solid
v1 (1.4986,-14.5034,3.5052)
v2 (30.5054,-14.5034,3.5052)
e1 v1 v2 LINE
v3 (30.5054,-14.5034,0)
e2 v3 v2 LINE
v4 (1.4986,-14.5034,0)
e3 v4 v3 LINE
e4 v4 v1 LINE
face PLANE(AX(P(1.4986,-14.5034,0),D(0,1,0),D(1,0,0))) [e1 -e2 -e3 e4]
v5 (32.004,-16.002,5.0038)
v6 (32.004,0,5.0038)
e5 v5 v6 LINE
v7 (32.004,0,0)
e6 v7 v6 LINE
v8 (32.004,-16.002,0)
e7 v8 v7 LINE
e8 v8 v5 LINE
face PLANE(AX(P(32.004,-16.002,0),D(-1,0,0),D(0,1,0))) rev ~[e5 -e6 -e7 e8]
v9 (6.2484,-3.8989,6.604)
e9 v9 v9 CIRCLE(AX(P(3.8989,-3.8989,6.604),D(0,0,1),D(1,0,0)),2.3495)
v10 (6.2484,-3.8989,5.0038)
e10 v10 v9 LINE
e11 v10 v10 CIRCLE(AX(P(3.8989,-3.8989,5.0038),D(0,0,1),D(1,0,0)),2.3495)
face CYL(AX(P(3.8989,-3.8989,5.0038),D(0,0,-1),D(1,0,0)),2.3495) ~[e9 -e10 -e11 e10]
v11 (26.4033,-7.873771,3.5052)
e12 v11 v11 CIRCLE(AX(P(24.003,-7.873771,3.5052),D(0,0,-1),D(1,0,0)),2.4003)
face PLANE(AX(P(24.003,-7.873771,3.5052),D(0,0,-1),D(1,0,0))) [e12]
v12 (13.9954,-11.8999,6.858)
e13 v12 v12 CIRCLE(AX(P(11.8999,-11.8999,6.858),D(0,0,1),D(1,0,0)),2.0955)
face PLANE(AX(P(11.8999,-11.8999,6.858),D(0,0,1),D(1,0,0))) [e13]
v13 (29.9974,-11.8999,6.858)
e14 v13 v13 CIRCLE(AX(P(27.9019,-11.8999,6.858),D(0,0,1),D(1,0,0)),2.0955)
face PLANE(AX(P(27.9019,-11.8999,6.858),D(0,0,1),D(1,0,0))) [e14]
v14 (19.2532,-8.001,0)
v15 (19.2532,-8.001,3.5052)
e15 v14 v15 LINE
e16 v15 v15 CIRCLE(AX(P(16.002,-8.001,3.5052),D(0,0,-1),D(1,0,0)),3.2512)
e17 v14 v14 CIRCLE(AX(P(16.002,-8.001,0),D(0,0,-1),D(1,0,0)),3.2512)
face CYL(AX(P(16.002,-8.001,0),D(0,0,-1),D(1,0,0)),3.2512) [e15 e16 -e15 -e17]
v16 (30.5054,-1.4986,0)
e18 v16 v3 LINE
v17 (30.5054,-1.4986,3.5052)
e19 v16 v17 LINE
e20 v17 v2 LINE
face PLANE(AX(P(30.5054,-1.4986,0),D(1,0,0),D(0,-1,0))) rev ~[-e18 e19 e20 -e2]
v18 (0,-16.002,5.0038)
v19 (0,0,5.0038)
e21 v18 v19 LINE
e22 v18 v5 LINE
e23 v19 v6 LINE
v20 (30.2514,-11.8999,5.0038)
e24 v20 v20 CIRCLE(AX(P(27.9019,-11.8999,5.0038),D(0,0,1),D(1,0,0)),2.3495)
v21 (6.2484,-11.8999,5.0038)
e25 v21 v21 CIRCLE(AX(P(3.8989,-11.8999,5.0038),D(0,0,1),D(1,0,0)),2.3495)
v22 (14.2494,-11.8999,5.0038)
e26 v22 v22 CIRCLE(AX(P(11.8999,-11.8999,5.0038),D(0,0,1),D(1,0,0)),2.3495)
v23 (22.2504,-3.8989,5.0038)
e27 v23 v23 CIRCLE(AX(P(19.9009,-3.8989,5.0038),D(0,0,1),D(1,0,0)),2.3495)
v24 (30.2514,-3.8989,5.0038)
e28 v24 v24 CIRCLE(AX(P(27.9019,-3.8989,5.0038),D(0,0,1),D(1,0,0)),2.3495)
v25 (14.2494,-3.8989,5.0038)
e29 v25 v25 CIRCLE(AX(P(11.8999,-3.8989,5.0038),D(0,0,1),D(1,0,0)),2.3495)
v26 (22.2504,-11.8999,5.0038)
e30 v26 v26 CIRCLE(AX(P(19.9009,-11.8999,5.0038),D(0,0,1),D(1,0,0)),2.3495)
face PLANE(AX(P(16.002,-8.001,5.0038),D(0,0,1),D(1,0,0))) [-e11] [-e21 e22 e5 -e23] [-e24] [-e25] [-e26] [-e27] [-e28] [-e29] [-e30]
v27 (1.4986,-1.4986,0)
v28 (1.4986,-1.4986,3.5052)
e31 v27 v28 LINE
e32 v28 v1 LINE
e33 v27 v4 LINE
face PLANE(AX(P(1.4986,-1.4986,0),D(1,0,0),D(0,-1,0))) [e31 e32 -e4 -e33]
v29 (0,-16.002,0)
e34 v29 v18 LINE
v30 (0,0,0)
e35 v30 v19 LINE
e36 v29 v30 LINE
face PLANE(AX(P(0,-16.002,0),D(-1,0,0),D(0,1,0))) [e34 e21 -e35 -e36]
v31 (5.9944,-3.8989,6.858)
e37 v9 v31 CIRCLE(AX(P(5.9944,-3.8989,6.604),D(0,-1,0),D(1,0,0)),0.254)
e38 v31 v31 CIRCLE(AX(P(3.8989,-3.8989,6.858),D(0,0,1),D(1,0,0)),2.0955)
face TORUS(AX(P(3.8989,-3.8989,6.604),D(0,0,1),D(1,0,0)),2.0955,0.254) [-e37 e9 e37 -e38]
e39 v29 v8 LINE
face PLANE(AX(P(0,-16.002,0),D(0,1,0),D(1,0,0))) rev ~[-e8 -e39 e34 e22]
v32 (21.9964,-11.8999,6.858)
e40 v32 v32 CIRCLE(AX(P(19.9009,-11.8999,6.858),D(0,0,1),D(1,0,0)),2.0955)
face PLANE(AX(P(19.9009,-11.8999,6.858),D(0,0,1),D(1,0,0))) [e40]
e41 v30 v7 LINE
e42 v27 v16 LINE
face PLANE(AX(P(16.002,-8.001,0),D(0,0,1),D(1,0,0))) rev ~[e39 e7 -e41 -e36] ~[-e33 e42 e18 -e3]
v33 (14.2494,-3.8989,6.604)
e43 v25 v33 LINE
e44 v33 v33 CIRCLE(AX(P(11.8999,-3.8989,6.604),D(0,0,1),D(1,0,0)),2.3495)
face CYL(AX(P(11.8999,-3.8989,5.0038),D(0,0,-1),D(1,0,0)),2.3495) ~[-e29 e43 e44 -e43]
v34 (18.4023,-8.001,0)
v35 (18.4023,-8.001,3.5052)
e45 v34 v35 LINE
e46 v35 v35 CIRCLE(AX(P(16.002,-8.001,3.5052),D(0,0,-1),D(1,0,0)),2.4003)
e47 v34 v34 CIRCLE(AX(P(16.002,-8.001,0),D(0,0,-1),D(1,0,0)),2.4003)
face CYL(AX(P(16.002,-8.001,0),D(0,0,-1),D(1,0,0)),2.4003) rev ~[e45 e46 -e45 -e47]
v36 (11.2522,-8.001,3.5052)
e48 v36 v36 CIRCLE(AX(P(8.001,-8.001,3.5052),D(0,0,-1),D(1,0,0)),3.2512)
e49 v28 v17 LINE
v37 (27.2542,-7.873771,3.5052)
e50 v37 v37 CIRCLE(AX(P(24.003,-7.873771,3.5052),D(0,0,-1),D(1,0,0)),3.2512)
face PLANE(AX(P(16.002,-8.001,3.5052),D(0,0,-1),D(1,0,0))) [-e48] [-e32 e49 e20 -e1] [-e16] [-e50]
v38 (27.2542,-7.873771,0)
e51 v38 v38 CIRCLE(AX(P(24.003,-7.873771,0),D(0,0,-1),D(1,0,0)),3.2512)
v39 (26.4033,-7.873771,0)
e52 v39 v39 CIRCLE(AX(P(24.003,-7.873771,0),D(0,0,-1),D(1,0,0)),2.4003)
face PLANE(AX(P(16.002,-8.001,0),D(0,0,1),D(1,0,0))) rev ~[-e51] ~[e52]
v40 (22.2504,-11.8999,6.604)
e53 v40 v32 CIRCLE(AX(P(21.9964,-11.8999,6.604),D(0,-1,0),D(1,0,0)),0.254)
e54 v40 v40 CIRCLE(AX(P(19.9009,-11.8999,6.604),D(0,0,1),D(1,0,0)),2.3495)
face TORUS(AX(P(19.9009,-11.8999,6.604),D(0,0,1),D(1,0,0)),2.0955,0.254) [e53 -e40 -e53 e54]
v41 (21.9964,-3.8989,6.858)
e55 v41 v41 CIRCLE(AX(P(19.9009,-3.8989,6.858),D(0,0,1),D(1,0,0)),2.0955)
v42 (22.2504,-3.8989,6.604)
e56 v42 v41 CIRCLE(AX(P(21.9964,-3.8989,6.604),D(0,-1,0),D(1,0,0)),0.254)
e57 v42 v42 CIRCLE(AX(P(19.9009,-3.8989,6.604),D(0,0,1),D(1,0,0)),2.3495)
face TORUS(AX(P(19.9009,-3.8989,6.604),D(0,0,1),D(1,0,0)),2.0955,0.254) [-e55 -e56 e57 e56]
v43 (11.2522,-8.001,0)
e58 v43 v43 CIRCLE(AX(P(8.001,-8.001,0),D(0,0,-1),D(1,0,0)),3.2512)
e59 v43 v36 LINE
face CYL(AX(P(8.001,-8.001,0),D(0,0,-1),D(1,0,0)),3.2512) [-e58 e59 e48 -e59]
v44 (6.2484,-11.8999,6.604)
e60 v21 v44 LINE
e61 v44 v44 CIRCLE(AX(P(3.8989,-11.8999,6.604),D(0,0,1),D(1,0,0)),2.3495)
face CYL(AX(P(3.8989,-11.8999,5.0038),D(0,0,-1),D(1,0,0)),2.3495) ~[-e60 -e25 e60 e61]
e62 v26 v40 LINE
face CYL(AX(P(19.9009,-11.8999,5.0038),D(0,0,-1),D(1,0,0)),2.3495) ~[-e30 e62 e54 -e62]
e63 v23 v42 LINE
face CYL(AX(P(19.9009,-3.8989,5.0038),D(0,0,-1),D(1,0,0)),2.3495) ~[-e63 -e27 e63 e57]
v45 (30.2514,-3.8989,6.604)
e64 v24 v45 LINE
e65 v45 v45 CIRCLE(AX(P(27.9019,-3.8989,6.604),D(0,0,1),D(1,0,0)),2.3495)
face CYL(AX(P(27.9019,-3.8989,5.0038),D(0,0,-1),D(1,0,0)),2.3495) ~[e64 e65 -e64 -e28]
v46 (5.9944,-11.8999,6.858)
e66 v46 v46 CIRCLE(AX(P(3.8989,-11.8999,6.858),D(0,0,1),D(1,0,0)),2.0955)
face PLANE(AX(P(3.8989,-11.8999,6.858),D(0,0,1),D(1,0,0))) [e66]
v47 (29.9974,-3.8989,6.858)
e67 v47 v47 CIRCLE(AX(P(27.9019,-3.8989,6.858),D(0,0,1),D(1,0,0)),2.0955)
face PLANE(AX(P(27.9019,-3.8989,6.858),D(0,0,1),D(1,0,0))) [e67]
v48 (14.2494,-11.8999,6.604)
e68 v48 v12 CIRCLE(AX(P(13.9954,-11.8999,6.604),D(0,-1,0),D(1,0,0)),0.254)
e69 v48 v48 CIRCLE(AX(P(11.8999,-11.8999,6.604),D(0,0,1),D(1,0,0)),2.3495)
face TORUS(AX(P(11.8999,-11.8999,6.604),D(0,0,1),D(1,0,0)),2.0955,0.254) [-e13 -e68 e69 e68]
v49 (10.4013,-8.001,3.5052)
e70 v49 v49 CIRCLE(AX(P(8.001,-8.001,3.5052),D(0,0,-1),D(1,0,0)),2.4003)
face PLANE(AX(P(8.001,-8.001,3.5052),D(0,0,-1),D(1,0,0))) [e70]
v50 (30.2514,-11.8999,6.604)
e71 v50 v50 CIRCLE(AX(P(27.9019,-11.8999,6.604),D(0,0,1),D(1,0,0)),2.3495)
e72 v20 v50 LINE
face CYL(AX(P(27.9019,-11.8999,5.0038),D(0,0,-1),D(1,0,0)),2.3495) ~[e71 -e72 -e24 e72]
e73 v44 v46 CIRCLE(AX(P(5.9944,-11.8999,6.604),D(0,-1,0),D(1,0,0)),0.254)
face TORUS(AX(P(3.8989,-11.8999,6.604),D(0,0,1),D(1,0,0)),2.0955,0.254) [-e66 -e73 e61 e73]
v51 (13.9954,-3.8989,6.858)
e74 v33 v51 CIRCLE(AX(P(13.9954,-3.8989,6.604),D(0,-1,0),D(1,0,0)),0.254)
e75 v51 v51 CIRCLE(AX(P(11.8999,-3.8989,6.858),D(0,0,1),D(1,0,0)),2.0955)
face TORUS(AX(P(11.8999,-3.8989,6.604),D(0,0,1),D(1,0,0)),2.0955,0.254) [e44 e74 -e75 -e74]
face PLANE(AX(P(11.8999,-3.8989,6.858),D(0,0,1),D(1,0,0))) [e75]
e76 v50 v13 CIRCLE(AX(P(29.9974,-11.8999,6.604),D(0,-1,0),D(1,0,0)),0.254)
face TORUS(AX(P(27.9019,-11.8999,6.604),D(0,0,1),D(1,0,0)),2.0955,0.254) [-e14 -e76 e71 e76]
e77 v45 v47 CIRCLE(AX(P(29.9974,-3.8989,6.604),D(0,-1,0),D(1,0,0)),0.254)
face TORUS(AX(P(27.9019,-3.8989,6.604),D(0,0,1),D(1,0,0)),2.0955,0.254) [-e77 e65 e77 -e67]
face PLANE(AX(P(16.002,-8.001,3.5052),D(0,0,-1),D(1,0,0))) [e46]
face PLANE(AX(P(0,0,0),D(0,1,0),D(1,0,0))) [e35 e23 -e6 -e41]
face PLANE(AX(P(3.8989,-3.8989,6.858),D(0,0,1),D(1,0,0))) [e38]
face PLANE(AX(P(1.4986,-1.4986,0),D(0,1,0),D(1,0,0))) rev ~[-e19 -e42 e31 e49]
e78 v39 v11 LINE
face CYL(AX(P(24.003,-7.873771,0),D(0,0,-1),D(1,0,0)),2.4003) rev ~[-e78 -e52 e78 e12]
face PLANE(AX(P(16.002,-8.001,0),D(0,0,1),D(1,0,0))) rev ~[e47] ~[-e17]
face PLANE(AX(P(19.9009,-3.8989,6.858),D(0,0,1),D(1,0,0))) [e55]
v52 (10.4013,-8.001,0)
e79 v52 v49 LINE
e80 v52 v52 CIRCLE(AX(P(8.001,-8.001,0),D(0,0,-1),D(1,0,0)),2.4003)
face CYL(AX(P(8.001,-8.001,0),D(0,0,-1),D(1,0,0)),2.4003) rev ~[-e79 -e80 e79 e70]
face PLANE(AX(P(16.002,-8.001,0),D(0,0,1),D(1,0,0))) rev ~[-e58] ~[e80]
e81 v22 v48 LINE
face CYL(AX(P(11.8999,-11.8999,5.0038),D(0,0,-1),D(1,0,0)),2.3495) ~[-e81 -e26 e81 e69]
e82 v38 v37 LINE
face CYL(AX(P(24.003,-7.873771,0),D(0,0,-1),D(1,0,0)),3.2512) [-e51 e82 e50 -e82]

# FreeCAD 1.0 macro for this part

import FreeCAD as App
import Part
import Sketcher

V = App.Vector
Q = App.Units.Quantity


def edges_at(feature, points):
    """Names of the edges that pass closest to the given points."""
    edges = feature.Shape.Edges
    near = lambda p: min(range(len(edges)), key=lambda i: edges[i].distToShape(Part.Vertex(*p))[0])
    return sorted({f"Edge{near(p) + 1}" for p in points})


def add_polygon(sketch, points):
    """Adds a closed chain of lines whose ends are joined by coincident constraints."""
    first, n = sketch.GeometryCount, len(points)
    for a, b in zip(points, points[1:] + points[:1]):
        sketch.addGeometry(Part.LineSegment(App.Vector(*a, 0), App.Vector(*b, 0)), False)
    for i in range(n):
        sketch.addConstraint(Sketcher.Constraint("Coincident", first + i, 2, first + (i + 1) % n, 1))

doc = App.newDocument("Part")
body = doc.addObject("PartDesign::Body", "Body")

# Sketch on XY plane
sketch1 = doc.addObject("Sketcher::SketchObject", "Sketch")
body.addObject(sketch1)
sketch1.AttachmentSupport = (doc.XY_Plane, [""])
sketch1.MapMode = "FlatFace"
add_polygon(sketch1, [(0, 0), (0, -16.002), (32.004, -16.002), (32.004, 0)])  # lines 0-3
sketch1.addConstraint([
    Sketcher.Constraint("Vertical", 0),
    Sketcher.Constraint("Horizontal", 1),
    Sketcher.Constraint("Vertical", 2),
    Sketcher.Constraint("Horizontal", 3),
    Sketcher.Constraint("Coincident", 3, 2, -1, 1),
    Sketcher.Constraint("DistanceX", 1, 1, 1, 2, Q("1.26 in")),
    Sketcher.Constraint("DistanceY", 0, 2, 0, 1, Q("0.63 in")),
])
pad1 = doc.addObject("PartDesign::Pad", "Pad")
body.addObject(pad1)
pad1.Profile = sketch1
pad1.Length = Q("0.197 in")

# Sketch on XY plane
sketch2 = doc.addObject("Sketcher::SketchObject", "Sketch001")
body.addObject(sketch2)
sketch2.AttachmentSupport = (doc.XY_Plane, [""])
sketch2.MapMode = "FlatFace"
sketch2.AttachmentOffset = App.Placement(V(0, 0, 0.197 * 25.4), App.Rotation())
sketch2.addGeometry([
    Part.Circle(V(3.8989, -3.8989, 0), V(0, 0, 1), 2.3495),  # 0
    Part.Circle(V(11.8999, -3.8989, 0), V(0, 0, 1), 2.3495),  # 1
    Part.Circle(V(19.9009, -3.8989, 0), V(0, 0, 1), 2.3495),  # 2
    Part.Circle(V(27.9019, -3.8989, 0), V(0, 0, 1), 2.3495),  # 3
    Part.Circle(V(27.9019, -11.8999, 0), V(0, 0, 1), 2.3495),  # 4
    Part.Circle(V(19.9009, -11.8999, 0), V(0, 0, 1), 2.3495),  # 5
    Part.Circle(V(11.8999, -11.8999, 0), V(0, 0, 1), 2.3495),  # 6
    Part.Circle(V(3.8989, -11.8999, 0), V(0, 0, 1), 2.3495),  # 7
], False)
sketch2.addConstraint([
    Sketcher.Constraint("Equal", 0, 1),
    Sketcher.Constraint("Equal", 1, 2),
    Sketcher.Constraint("Equal", 2, 3),
    Sketcher.Constraint("Equal", 3, 4),
    Sketcher.Constraint("Equal", 4, 5),
    Sketcher.Constraint("Equal", 5, 6),
    Sketcher.Constraint("Equal", 6, 7),
    Sketcher.Constraint("Horizontal", 0, 3, 1, 3),
    Sketcher.Constraint("Horizontal", 1, 3, 2, 3),
    Sketcher.Constraint("Horizontal", 2, 3, 3, 3),
    Sketcher.Constraint("Horizontal", 4, 3, 5, 3),
    Sketcher.Constraint("Horizontal", 5, 3, 6, 3),
    Sketcher.Constraint("Horizontal", 6, 3, 7, 3),
    Sketcher.Constraint("Vertical", 3, 3, 4, 3),
    Sketcher.Constraint("Vertical", 2, 3, 5, 3),
    Sketcher.Constraint("Vertical", 1, 3, 6, 3),
    Sketcher.Constraint("Vertical", 0, 3, 7, 3),
    Sketcher.Constraint("Diameter", 0, Q("0.185 in")),
    Sketcher.Constraint("DistanceX", 0, 3, 2, 3, Q("0.63 in")),
    Sketcher.Constraint("DistanceX", 1, 3, 3, 3, Q("0.63 in")),
    Sketcher.Constraint("DistanceX", 0, 3, 1, 3, Q("0.315 in")),
    Sketcher.Constraint("DistanceY", 4, 3, 3, 3, Q("0.315 in")),
    Sketcher.Constraint("DistanceX", -1, 1, 0, 3, Q("0.1535 in")),
    Sketcher.Constraint("DistanceY", 0, 3, -1, 1, Q("0.1535 in")),
])
pad2 = doc.addObject("PartDesign::Pad", "Pad001")
body.addObject(pad2)
pad2.Profile = sketch2
pad2.Length = Q("0.073 in")
doc.recompute()

fillet = doc.addObject("PartDesign::Fillet", "Fillet")
body.addObject(fillet)
fillet.Base = (pad2, edges_at(pad2, [
    (1.549, -11.9, 6.858),
    (1.549, -3.899, 6.858),
    (9.55, -3.899, 6.858),
    (9.55, -11.9, 6.858),
    (17.551, -11.9, 6.858),
    (17.551, -3.899, 6.858),
    (25.552, -3.899, 6.858),
    (25.552, -11.9, 6.858),
]))
fillet.Radius = Q("0.01 in")

# Sketch on XY plane
sketch3 = doc.addObject("Sketcher::SketchObject", "Sketch002")
body.addObject(sketch3)
sketch3.AttachmentSupport = (doc.XY_Plane, [""])
sketch3.MapMode = "FlatFace"
add_polygon(sketch3, [(1.4986, -14.5034), (1.4986, -1.4986), (30.5054, -1.4986), (30.5054, -14.5034)])  # lines 0-3
sketch3.addGeometry(Part.Circle(V(24.003, -7.873771, 0), V(0, 0, 1), 3.2512), False)  # 4
sketch3.addGeometry(Part.Circle(V(8.001, -8.001, 0), V(0, 0, 1), 3.2512), False)  # 5
sketch3.addGeometry(Part.Circle(V(16.002, -8.001, 0), V(0, 0, 1), 3.2512), False)  # 6
sketch3.addGeometry(Part.Circle(V(8.001, -8.001, 0), V(0, 0, 1), 2.4003), False)  # 7
sketch3.addGeometry(Part.Circle(V(16.002, -8.001, 0), V(0, 0, 1), 2.4003), False)  # 8
sketch3.addGeometry(Part.Circle(V(24.003, -7.873771, 0), V(0, 0, 1), 2.4003), False)  # 9
sketch3.addConstraint([
    Sketcher.Constraint("Vertical", 0),
    Sketcher.Constraint("Horizontal", 1),
    Sketcher.Constraint("Vertical", 2),
    Sketcher.Constraint("Horizontal", 3),
    Sketcher.Constraint("Coincident", 7, 3, 5, 3),
    Sketcher.Constraint("Coincident", 8, 3, 6, 3),
    Sketcher.Constraint("Coincident", 9, 3, 4, 3),
    Sketcher.Constraint("Equal", 4, 5),
    Sketcher.Constraint("Equal", 5, 6),
    Sketcher.Constraint("Equal", 7, 8),
    Sketcher.Constraint("Equal", 8, 9),
    Sketcher.Constraint("Horizontal", 5, 3, 6, 3),
    Sketcher.Constraint("Diameter", 4, Q("0.256 in")),
    Sketcher.Constraint("Diameter", 7, Q("0.189 in")),
    Sketcher.Constraint("DistanceX", 1, 1, 1, 2, Q("1.142 in")),
    Sketcher.Constraint("DistanceY", 0, 1, 0, 2, Q("0.512 in")),
    Sketcher.Constraint("DistanceX", -1, 1, 6, 3, Q("0.63 in")),
    Sketcher.Constraint("DistanceX", 5, 3, 4, 3, Q("0.63 in")),
    Sketcher.Constraint("DistanceX", -1, 1, 4, 3, Q("0.945 in")),
    Sketcher.Constraint("DistanceY", 5, 3, -1, 1, Q("0.315 in")),
    Sketcher.Constraint("DistanceX", -1, 1, 0, 2, Q("0.059 in")),
    Sketcher.Constraint("DistanceY", 0, 2, -1, 1, Q("0.059 in")),
    Sketcher.Constraint("DistanceY", 4, 3, -1, 1, Q("7.873771 mm")),
])
pocket1 = doc.addObject("PartDesign::Pocket", "Pocket")
body.addObject(pocket1)
pocket1.Profile = sketch3
pocket1.Length = Q("0.138 in")
pocket1.Reversed = True

doc.recompute()
